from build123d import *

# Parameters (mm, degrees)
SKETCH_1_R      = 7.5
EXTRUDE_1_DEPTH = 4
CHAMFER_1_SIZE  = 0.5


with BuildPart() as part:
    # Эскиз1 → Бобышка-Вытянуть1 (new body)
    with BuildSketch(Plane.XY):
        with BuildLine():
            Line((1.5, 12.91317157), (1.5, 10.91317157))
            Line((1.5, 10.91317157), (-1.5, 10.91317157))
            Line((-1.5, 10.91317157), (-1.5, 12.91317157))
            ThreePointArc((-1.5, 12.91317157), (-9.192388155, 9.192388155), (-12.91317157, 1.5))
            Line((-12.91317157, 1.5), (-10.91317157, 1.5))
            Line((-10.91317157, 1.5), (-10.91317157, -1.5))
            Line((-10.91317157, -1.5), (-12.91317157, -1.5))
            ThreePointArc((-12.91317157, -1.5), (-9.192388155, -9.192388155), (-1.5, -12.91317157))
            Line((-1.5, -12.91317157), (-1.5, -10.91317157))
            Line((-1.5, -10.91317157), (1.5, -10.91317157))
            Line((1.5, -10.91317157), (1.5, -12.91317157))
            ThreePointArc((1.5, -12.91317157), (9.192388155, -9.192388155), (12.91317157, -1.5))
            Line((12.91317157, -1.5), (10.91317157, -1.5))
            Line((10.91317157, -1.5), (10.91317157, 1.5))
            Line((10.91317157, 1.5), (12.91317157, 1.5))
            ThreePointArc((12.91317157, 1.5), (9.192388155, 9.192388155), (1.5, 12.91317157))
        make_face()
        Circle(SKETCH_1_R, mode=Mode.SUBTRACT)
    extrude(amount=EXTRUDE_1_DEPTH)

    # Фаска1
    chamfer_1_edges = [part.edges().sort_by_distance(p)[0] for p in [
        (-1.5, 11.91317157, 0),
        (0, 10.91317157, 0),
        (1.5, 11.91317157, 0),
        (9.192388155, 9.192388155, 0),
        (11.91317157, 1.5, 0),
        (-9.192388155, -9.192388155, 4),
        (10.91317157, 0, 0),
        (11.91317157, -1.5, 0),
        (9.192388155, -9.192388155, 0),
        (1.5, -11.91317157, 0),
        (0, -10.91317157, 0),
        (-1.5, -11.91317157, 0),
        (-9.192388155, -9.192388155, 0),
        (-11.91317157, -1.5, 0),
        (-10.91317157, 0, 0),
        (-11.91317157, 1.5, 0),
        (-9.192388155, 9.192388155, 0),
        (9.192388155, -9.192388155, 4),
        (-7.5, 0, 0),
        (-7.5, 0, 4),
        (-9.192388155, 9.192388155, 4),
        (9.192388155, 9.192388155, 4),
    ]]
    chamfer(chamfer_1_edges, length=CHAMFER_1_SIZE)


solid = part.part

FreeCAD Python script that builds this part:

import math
import FreeCAD as App
import Part
import Sketcher
from FreeCAD import Vector
Q = App.Units.Quantity


def edges_at(feature, points):
    """Names of the edges that pass closest to the given points."""
    edges = feature.Shape.Edges
    near = lambda p: min(range(len(edges)), key=lambda i: edges[i].distToShape(Part.Vertex(*p))[0])
    return sorted({f"Edge{near(p) + 1}" for p in points})

doc = App.newDocument("Part")
body = doc.addObject("PartDesign::Body", "Body")

sketch1 = doc.addObject("Sketcher::SketchObject", "Sketch")
body.addObject(sketch1)
sketch1.AttachmentSupport = (doc.XY_Plane, [""])
sketch1.MapMode = "FlatFace"
sketch1.addGeometry([
    Part.LineSegment(Vector(1.5, 12.9, 0), Vector(1.5, 10.9, 0)),
    Part.LineSegment(Vector(1.5, 10.9, 0), Vector(-1.5, 10.9, 0)),
    Part.LineSegment(Vector(-1.5, 10.9, 0), Vector(-1.5, 12.9, 0)),
    Part.ArcOfCircle(Part.Circle(Vector(0, 0, 0), Vector(0, 0, 1), 13), math.radians(97), math.radians(173)),
    Part.LineSegment(Vector(-12.9, 1.5, 0), Vector(-10.9, 1.5, 0)),
    Part.LineSegment(Vector(-10.9, 1.5, 0), Vector(-10.9, -1.5, 0)),
    Part.LineSegment(Vector(-10.9, -1.5, 0), Vector(-12.9, -1.5, 0)),
    Part.ArcOfCircle(Part.Circle(Vector(0, 0, 0), Vector(0, 0, 1), 13), math.radians(-173), math.radians(-97)),
    Part.LineSegment(Vector(-1.5, -12.9, 0), Vector(-1.5, -10.9, 0)),
    Part.LineSegment(Vector(-1.5, -10.9, 0), Vector(1.5, -10.9, 0)),
    Part.LineSegment(Vector(1.5, -10.9, 0), Vector(1.5, -12.9, 0)),
    Part.ArcOfCircle(Part.Circle(Vector(0, 0, 0), Vector(0, 0, 1), 13), math.radians(-83), math.radians(-7)),
    Part.LineSegment(Vector(12.9, -1.5, 0), Vector(10.9, -1.5, 0)),
    Part.LineSegment(Vector(10.9, -1.5, 0), Vector(10.9, 1.5, 0)),
    Part.LineSegment(Vector(10.9, 1.5, 0), Vector(12.9, 1.5, 0)),
    Part.ArcOfCircle(Part.Circle(Vector(0, 0, 0), Vector(0, 0, 1), 13), math.radians(7), math.radians(83)),
    Part.Circle(Vector(0, 0, 0), Vector(0, 0, 1), 7.5),
], False)
sketch1.addConstraint([
    Sketcher.Constraint("Coincident", 0, 2, 1, 1),
    Sketcher.Constraint("Coincident", 1, 2, 2, 1),
    Sketcher.Constraint("Coincident", 2, 2, 3, 1),
    Sketcher.Constraint("Coincident", 3, 2, 4, 1),
    Sketcher.Constraint("Coincident", 4, 2, 5, 1),
    Sketcher.Constraint("Coincident", 5, 2, 6, 1),
    Sketcher.Constraint("Coincident", 6, 2, 7, 1),
    Sketcher.Constraint("Coincident", 7, 2, 8, 1),
    Sketcher.Constraint("Coincident", 8, 2, 9, 1),
    Sketcher.Constraint("Coincident", 9, 2, 10, 1),
    Sketcher.Constraint("Coincident", 10, 2, 11, 1),
    Sketcher.Constraint("Coincident", 11, 2, 12, 1),
    Sketcher.Constraint("Coincident", 12, 2, 13, 1),
    Sketcher.Constraint("Coincident", 13, 2, 14, 1),
    Sketcher.Constraint("Coincident", 14, 2, 15, 1),
    Sketcher.Constraint("Coincident", 15, 2, 0, 1),
    Sketcher.Constraint("Vertical", 0),
    Sketcher.Constraint("Horizontal", 1),
    Sketcher.Constraint("Vertical", 2),
    Sketcher.Constraint("Horizontal", 4),
    Sketcher.Constraint("Vertical", 5),
    Sketcher.Constraint("Horizontal", 6),
    Sketcher.Constraint("Vertical", 8),
    Sketcher.Constraint("Horizontal", 9),
    Sketcher.Constraint("Vertical", 10),
    Sketcher.Constraint("Horizontal", 12),
    Sketcher.Constraint("Vertical", 13),
    Sketcher.Constraint("Horizontal", 14),
    Sketcher.Constraint("Coincident", 3, 3, -1, 1),
    Sketcher.Constraint("Coincident", 7, 3, -1, 1),
    Sketcher.Constraint("Coincident", 11, 3, -1, 1),
    Sketcher.Constraint("Coincident", 15, 3, -1, 1),
    Sketcher.Constraint("Coincident", 16, 3, -1, 1),
    Sketcher.Constraint("Equal", 3, 7),
    Sketcher.Constraint("Equal", 7, 11),
    Sketcher.Constraint("Equal", 11, 15),
    Sketcher.Constraint("Symmetric", 0, 2, 8, 2, -1, 1),
    Sketcher.Constraint("Symmetric", 4, 2, 12, 2, -1, 1),
    Sketcher.Constraint("Horizontal", 7, 2, 10, 2),
    Sketcher.Constraint("Horizontal", 6, 2, 11, 2),
    Sketcher.Constraint("Horizontal", 4, 2, 13, 2),
    Sketcher.Constraint("Horizontal", 2, 2, 15, 2),
    Sketcher.Constraint("Equal", 14, 0),
    Sketcher.Constraint("Equal", 9, 5),
    Sketcher.Constraint("Diameter", 16, Q("15 mm")),
    Sketcher.Constraint("Radius", 3, Q("13 mm")),
    Sketcher.Constraint("DistanceX", 1, 2, 1, 1, Q("3 mm")),
    Sketcher.Constraint("DistanceX", 4, 1, 4, 2, Q("2 mm")),
])
pad1 = doc.addObject("PartDesign::Pad", "Pad")
body.addObject(pad1)
pad1.Profile = sketch1
pad1.Length = 4
doc.recompute()

chamfer = doc.addObject("PartDesign::Chamfer", "Chamfer")
body.addObject(chamfer)
chamfer.Base = (pad1, edges_at(pad1, [
    (-1.5, 11.913, 0),
    (0, 10.913, 0),
    (1.5, 11.913, 0),
    (9.192, 9.192, 0),
    (11.913, 1.5, 0),
    (-9.192, -9.192, 4),
    (10.913, 0, 0),
    (11.913, -1.5, 0),
    (9.192, -9.192, 0),
    (1.5, -11.913, 0),
    (0, -10.913, 0),
    (-1.5, -11.913, 0),
    (-9.192, -9.192, 0),
    (-11.913, -1.5, 0),
    (-10.913, 0, 0),
    (-11.913, 1.5, 0),
    (-9.192, 9.192, 0),
    (9.192, -9.192, 4),
    (-7.5, 0, 0),
    (-7.5, 0, 4),
    (-9.192, 9.192, 4),
    (9.192, 9.192, 4),
]))
chamfer.Size = 0.5

doc.recompute()
